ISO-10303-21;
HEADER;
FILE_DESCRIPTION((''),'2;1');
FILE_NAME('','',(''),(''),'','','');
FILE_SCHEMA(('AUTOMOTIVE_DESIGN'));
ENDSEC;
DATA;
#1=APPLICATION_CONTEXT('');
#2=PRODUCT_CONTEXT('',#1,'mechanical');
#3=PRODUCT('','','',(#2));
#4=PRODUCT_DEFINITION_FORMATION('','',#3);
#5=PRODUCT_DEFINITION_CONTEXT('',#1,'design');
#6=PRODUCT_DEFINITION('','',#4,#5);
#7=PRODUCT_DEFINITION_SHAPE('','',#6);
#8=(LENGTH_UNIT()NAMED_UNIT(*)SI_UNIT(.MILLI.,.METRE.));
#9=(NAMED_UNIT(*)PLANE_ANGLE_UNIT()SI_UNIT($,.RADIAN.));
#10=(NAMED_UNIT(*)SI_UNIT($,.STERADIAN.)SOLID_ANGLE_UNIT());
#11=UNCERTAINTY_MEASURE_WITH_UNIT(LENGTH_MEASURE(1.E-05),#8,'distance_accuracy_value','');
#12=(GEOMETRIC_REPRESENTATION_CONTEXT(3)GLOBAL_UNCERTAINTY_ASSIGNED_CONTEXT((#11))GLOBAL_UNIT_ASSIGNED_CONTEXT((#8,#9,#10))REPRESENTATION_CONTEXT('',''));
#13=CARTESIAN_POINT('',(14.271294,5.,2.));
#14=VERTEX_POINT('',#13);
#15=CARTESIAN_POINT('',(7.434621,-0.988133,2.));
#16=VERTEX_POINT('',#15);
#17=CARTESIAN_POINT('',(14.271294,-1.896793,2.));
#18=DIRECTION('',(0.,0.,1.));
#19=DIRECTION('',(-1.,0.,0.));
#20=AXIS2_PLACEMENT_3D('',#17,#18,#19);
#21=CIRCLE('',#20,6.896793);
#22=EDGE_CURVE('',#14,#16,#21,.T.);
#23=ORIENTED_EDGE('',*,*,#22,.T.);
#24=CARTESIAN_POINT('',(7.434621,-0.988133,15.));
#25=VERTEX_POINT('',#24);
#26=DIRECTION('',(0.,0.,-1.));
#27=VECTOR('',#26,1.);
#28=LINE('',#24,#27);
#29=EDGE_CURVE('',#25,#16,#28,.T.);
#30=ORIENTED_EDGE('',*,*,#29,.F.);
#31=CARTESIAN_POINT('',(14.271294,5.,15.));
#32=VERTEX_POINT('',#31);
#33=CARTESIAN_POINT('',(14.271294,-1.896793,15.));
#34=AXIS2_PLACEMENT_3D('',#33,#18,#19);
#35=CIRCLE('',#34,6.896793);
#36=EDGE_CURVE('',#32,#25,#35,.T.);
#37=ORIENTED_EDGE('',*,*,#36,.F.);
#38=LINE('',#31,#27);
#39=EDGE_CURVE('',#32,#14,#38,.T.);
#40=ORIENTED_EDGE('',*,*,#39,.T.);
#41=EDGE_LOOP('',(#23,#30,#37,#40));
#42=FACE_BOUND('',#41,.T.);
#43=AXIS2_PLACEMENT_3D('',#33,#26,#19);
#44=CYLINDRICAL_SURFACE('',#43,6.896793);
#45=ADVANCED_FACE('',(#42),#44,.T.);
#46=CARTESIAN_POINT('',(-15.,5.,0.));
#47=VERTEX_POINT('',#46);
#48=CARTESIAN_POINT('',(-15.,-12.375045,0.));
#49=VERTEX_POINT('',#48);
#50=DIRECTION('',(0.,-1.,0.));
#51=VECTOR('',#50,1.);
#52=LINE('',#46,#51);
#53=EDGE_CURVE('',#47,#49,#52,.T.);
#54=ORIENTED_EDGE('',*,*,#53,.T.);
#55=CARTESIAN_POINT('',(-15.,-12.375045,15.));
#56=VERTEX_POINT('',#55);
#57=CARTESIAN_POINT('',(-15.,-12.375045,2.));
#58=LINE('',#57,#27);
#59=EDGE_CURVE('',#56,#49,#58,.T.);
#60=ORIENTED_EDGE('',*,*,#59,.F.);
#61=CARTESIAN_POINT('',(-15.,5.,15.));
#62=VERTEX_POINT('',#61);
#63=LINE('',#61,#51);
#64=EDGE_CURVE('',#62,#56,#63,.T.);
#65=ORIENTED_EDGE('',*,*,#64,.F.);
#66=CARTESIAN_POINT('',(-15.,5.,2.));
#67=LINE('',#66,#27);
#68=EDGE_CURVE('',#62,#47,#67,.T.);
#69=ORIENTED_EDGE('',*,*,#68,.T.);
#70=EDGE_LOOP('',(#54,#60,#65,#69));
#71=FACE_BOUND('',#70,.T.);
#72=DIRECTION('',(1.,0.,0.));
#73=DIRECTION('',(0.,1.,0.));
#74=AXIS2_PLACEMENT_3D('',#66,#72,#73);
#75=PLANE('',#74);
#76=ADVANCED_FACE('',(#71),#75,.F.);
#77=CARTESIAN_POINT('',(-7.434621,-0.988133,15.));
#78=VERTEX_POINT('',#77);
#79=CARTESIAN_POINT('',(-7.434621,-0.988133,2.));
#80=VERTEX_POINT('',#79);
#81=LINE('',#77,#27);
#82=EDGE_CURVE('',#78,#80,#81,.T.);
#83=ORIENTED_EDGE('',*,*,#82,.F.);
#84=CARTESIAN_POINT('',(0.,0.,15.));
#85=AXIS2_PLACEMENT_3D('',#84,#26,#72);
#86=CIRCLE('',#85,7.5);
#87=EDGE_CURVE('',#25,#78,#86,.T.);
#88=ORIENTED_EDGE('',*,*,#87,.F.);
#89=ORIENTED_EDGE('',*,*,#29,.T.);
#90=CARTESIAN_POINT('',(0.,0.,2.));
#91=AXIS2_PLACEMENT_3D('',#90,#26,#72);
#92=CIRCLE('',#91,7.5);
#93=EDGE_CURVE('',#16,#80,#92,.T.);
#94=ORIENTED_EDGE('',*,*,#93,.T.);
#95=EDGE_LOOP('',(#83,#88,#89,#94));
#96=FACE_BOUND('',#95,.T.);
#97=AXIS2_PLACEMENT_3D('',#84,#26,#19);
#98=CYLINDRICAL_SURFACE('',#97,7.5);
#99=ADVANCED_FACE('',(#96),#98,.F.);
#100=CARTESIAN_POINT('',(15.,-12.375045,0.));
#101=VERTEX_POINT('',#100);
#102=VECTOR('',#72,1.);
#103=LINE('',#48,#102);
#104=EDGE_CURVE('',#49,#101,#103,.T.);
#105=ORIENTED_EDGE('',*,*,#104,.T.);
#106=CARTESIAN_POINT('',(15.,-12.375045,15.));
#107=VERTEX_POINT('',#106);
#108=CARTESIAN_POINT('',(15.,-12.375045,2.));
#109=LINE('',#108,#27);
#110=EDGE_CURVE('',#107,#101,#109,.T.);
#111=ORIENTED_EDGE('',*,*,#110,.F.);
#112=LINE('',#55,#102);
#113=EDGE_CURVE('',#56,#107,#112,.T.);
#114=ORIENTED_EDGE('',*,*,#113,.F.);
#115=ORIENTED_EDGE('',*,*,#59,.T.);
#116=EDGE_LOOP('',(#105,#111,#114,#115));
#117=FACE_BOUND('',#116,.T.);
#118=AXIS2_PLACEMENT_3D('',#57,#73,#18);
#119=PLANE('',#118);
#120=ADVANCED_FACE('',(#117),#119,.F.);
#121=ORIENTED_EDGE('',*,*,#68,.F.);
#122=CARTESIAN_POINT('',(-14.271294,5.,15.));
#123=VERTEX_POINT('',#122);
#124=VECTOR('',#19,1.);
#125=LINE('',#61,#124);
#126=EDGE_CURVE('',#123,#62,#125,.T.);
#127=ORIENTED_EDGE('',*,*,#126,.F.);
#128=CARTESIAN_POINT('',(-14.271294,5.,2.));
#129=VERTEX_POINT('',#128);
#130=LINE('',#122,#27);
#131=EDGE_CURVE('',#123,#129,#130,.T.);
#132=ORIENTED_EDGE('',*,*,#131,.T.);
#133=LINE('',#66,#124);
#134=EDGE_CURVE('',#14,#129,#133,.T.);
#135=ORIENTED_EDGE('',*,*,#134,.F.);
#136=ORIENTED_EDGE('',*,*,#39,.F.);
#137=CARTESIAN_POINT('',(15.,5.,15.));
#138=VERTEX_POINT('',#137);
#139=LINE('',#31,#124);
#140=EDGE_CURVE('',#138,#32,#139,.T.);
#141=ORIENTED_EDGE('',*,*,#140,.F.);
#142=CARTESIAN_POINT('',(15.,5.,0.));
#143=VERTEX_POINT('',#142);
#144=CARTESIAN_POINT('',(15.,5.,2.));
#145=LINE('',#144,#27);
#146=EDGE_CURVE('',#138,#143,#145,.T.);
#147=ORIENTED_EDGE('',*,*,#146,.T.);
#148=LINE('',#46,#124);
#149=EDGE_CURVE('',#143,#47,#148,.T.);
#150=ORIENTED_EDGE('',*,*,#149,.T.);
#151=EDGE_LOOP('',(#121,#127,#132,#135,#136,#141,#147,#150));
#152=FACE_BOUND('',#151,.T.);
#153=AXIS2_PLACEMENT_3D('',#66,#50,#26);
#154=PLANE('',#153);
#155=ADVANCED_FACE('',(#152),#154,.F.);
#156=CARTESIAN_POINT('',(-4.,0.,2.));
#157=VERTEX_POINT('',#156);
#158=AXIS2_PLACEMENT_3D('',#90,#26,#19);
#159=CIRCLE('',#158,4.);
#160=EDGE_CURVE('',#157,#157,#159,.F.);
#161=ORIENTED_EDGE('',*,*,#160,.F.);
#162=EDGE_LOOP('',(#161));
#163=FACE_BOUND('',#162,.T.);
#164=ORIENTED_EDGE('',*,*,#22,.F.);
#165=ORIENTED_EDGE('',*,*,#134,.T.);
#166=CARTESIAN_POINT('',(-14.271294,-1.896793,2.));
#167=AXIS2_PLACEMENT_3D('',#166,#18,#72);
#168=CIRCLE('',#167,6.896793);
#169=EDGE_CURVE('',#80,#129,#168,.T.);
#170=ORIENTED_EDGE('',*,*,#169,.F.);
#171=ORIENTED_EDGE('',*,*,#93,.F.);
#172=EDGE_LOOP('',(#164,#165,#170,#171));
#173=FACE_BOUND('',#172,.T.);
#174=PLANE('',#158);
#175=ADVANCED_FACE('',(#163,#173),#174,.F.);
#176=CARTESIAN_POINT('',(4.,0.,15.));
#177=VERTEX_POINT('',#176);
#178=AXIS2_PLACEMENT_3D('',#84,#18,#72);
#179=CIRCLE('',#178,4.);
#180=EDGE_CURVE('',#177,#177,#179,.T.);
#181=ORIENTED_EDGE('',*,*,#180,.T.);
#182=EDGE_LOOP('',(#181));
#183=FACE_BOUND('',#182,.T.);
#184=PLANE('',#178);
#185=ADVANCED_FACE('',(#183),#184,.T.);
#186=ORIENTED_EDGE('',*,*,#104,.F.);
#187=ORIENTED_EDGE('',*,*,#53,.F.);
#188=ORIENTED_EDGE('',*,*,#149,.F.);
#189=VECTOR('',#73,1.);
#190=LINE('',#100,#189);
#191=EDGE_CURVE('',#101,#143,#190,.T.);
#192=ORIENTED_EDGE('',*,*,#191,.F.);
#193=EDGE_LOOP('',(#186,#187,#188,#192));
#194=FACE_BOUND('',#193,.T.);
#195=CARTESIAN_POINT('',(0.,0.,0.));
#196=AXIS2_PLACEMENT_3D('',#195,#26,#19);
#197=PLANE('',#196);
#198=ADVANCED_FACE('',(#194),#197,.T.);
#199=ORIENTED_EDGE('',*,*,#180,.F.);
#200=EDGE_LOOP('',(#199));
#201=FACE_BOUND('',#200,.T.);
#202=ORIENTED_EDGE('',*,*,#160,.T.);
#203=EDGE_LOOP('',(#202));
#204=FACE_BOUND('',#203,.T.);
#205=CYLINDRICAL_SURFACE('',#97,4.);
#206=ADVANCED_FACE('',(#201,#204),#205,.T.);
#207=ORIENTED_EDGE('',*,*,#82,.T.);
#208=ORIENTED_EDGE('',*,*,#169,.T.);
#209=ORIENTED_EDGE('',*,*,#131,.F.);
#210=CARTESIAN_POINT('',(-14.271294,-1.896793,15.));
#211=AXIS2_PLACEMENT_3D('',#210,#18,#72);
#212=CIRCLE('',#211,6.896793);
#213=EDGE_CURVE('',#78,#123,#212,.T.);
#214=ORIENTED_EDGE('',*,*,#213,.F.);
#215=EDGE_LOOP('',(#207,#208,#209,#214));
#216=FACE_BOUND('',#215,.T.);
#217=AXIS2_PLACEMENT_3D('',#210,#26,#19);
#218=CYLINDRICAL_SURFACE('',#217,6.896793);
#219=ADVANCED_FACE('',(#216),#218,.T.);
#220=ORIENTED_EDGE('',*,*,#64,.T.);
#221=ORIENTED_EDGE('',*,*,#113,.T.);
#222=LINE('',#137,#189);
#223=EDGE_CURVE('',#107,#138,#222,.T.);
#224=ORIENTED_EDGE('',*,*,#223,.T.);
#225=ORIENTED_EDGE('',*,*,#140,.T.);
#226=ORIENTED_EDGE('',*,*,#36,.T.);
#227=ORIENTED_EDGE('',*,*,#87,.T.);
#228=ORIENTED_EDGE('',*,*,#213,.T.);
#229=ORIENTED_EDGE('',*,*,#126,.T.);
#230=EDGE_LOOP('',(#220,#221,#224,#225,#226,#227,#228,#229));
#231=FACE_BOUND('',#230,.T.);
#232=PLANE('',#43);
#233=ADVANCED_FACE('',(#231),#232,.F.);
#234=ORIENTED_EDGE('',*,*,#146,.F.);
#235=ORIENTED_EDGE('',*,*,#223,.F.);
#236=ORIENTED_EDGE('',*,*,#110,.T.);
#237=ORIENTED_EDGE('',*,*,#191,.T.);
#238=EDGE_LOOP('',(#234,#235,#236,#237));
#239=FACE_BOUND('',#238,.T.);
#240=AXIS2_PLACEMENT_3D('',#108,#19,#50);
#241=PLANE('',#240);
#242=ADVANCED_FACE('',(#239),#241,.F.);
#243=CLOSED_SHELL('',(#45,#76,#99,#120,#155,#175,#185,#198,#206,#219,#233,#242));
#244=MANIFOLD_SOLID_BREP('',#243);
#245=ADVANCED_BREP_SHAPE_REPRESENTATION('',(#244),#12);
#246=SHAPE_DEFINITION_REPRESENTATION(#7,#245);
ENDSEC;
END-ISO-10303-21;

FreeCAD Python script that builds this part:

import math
import FreeCAD as App
import Part
import Sketcher
from FreeCAD import Vector


def add_polygon(sketch, points):
    """Adds a closed chain of lines whose ends are joined by coincident constraints."""
    first, n = sketch.GeometryCount, len(points)
    for a, b in zip(points, points[1:] + points[:1]):
        sketch.addGeometry(Part.LineSegment(App.Vector(*a, 0), App.Vector(*b, 0)), False)
    for i in range(n):
        sketch.addConstraint(Sketcher.Constraint("Coincident", first + i, 2, first + (i + 1) % n, 1))

doc = App.newDocument("Part")
body = doc.addObject("PartDesign::Body", "Body")

sketch1 = body.newObject("Sketcher::SketchObject", "Sketch")
sketch1.AttachmentSupport = (doc.getObject("XY_Plane"), [""])
sketch1.MapMode = "FlatFace"
add_polygon(sketch1, [(-15, 5), (-15, -12.375045), (15, -12.375045), (15, 5)])
sketch1.addConstraint([
    Sketcher.Constraint("Vertical", 0),
    Sketcher.Constraint("Horizontal", 1),
    Sketcher.Constraint("Vertical", 2),
    Sketcher.Constraint("Horizontal", 3),
    Sketcher.Constraint("DistanceX", 1, 1, 1, 2, 30.0),
    Sketcher.Constraint("DistanceX", 0, 2, -1, 1, 15.0),
    Sketcher.Constraint("DistanceY", -1, 1, 2, 2, 5.0),
    Sketcher.Constraint("DistanceY", 0, 2, 0, 1, 17.375045),
])
pad1 = body.newObject("PartDesign::Pad", "Pad")
pad1.Profile = sketch1
pad1.Length = 2

sketch2 = body.newObject("Sketcher::SketchObject", "Sketch001")
sketch2.AttachmentSupport = (doc.getObject("XY_Plane"), [""])
sketch2.MapMode = "FlatFace"
sketch2.AttachmentOffset = App.Placement(Vector(0, 0, 2), App.Rotation())
sketch2.addGeometry([
    Part.Circle(Vector(0, 0, 0), Vector(0, 0, 1), 4),
    Part.LineSegment(Vector(-14.271294, 5, 0), Vector(-15, 5, 0)),
    Part.LineSegment(Vector(-15, 5, 0), Vector(-15, -12.375045, 0)),
    Part.LineSegment(Vector(-15, -12.375045, 0), Vector(15, -12.375045, 0)),
    Part.LineSegment(Vector(15, -12.375045, 0), Vector(15, 5, 0)),
    Part.LineSegment(Vector(15, 5, 0), Vector(14.271294, 5, 0)),
    Part.ArcOfCircle(Part.Circle(Vector(14.271294, -1.896793, 0), Vector(0, 0, 1), 6.896793), math.radians(90), math.radians(172.429209)),
    Part.ArcOfCircle(Part.Circle(Vector(0, 0, 0), Vector(0, 0, 1), 7.5), math.radians(-172.429209), math.radians(-7.570791)),
    Part.ArcOfCircle(Part.Circle(Vector(-14.271294, -1.896793, 0), Vector(0, 0, 1), 6.896793), math.radians(7.570791), math.radians(90)),
], False)
sketch2.addConstraint([
    Sketcher.Constraint("Coincident", 1, 2, 2, 1),
    Sketcher.Constraint("Coincident", 2, 2, 3, 1),
    Sketcher.Constraint("Coincident", 3, 2, 4, 1),
    Sketcher.Constraint("Coincident", 4, 2, 5, 1),
    Sketcher.Constraint("Tangent", 5, 2, 6, 1),
    Sketcher.Constraint("Tangent", 6, 2, 7, 2),
    Sketcher.Constraint("Tangent", 7, 1, 8, 1),
    Sketcher.Constraint("Tangent", 8, 2, 1, 1),
    Sketcher.Constraint("Horizontal", 1),
    Sketcher.Constraint("Vertical", 2),
    Sketcher.Constraint("Horizontal", 3),
    Sketcher.Constraint("Vertical", 4),
    Sketcher.Constraint("Horizontal", 5),
    Sketcher.Constraint("Coincident", 0, 3, -1, 1),
    Sketcher.Constraint("Coincident", 7, 3, -1, 1),
    Sketcher.Constraint("Equal", 6, 8),
    Sketcher.Constraint("Symmetric", 1, 2, 4, 2, -2),
    Sketcher.Constraint("Diameter", 0, 8.0),
    Sketcher.Constraint("Radius", 7, 7.5),
    Sketcher.Constraint("DistanceX", 3, 1, 3, 2, 30.0),
    Sketcher.Constraint("DistanceY", -1, 1, 1, 2, 5.0),
    Sketcher.Constraint("Radius", 6, 6.896793),
    Sketcher.Constraint("DistanceY", 2, 2, 2, 1, 17.375045),
])
pad2 = body.newObject("PartDesign::Pad", "Pad001")
pad2.Profile = sketch2
pad2.Length = 13

doc.recompute()
